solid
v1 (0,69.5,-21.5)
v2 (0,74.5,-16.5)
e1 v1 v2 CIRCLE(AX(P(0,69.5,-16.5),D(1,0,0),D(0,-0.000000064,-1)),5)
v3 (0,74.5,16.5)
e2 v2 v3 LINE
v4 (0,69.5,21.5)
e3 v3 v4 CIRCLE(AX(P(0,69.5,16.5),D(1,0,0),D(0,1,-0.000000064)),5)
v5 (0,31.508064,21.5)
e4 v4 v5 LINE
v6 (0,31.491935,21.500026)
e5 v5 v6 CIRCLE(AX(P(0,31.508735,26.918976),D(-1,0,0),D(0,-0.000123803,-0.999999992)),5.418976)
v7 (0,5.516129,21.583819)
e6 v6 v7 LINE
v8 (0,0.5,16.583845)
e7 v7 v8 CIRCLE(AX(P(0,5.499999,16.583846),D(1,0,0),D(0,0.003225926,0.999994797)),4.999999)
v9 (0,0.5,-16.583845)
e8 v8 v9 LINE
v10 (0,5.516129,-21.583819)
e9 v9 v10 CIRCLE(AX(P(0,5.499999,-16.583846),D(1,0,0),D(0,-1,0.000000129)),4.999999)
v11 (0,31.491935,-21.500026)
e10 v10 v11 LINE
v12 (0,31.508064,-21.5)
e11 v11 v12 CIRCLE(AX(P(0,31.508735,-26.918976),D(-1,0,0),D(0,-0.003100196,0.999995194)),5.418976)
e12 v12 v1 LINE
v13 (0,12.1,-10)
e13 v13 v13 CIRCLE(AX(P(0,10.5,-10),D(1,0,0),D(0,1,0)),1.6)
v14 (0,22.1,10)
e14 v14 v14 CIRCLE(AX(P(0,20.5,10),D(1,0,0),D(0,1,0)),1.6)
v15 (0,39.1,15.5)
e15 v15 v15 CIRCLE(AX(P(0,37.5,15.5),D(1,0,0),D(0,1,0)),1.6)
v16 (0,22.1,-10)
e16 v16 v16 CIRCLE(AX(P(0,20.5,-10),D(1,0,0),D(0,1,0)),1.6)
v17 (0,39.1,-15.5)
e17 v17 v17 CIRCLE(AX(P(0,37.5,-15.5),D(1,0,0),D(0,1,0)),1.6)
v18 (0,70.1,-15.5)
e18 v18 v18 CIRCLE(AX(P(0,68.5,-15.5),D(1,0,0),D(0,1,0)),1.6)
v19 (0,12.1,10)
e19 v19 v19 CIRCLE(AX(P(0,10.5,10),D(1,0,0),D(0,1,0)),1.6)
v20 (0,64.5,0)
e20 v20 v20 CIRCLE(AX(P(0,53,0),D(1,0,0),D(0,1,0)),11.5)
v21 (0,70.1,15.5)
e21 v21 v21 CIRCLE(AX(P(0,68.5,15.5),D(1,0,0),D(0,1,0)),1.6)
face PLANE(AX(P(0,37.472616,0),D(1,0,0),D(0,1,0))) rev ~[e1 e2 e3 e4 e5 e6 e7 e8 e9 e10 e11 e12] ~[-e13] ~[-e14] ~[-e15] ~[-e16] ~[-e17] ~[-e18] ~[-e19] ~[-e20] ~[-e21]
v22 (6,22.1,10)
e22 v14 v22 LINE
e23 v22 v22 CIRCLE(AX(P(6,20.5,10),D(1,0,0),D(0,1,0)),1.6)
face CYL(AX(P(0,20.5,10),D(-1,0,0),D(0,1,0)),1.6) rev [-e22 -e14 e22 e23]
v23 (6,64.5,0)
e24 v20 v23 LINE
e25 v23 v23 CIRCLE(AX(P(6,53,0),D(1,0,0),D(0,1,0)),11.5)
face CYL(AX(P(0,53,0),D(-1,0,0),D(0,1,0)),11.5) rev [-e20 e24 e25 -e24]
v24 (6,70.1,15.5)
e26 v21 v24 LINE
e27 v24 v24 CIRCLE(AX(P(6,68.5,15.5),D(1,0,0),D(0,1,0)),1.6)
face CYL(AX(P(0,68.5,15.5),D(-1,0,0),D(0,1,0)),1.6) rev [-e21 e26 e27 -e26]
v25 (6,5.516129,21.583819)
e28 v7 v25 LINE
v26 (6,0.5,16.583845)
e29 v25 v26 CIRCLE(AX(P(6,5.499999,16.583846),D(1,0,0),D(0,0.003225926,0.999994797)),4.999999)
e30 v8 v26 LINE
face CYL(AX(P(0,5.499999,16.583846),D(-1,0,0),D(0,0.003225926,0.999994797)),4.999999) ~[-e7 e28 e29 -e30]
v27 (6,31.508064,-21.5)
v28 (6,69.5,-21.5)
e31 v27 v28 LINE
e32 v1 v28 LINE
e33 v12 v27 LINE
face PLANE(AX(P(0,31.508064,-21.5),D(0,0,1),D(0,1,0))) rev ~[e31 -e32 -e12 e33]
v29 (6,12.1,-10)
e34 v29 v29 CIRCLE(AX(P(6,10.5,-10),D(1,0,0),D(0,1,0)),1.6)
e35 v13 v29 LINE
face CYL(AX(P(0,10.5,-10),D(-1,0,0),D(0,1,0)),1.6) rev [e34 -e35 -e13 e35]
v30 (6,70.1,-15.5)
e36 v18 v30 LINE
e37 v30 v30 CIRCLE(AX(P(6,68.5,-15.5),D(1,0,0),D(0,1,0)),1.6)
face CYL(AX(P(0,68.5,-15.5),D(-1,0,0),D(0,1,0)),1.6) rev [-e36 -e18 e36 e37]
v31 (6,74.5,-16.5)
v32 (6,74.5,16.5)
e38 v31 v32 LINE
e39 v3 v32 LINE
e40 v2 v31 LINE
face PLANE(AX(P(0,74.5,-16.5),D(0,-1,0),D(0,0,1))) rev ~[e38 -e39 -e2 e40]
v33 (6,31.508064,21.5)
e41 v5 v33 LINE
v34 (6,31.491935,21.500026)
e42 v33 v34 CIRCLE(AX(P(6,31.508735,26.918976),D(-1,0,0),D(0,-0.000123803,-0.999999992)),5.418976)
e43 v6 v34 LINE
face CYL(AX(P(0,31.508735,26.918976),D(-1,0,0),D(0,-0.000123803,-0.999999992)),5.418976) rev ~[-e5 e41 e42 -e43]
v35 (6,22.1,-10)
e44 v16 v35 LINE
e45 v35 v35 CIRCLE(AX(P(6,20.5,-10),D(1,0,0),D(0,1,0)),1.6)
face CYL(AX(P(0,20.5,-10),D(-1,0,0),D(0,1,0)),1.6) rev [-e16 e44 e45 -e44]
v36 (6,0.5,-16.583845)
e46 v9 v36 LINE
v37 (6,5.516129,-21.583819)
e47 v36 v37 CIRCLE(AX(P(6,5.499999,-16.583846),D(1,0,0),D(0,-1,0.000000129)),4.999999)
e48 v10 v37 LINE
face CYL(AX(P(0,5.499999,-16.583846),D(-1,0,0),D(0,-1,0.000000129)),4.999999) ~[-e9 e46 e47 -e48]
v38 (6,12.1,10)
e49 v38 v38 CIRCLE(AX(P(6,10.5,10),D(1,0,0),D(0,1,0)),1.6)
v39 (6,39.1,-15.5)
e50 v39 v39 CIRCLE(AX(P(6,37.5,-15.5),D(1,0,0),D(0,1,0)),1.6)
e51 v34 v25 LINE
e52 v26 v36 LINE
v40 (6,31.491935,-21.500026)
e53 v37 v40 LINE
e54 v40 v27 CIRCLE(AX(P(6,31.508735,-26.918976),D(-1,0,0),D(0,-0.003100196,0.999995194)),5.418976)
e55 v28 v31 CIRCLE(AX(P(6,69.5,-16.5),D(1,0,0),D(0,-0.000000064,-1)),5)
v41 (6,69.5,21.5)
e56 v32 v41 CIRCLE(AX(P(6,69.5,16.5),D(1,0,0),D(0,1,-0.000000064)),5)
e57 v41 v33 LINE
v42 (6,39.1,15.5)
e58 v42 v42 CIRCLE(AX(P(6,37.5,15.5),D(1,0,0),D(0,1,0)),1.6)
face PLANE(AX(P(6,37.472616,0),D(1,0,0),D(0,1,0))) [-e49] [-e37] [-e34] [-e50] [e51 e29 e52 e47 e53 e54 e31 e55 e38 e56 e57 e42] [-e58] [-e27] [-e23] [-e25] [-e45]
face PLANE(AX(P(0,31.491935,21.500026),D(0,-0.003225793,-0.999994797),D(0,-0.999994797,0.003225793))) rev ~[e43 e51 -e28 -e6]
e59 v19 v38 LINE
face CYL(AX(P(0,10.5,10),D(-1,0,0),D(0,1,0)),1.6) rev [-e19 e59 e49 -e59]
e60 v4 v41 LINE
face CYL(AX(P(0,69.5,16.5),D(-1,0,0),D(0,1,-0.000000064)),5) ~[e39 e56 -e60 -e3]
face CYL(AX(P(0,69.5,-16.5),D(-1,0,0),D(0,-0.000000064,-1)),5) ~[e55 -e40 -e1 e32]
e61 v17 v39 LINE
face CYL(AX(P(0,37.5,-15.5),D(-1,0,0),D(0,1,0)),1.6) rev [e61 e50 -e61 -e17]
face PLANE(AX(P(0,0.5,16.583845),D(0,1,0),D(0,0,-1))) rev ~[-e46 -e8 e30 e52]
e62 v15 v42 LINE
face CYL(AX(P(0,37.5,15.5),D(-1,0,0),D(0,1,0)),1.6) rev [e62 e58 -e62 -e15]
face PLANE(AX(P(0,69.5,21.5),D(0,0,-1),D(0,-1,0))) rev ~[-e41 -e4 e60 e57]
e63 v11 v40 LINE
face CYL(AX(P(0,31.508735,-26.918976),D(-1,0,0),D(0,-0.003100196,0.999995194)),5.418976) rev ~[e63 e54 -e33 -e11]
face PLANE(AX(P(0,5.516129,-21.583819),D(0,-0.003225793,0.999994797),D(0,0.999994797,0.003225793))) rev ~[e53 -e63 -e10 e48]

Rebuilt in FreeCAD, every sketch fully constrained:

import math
import FreeCAD as App
import Part
import Sketcher

V = App.Vector
Q = App.Units.Quantity

doc = App.newDocument("Part")
body = doc.addObject("PartDesign::Body", "Body")

# Sketch on YZ plane
sketch1 = body.newObject("Sketcher::SketchObject", "Sketch")
sketch1.AttachmentSupport = (doc.getObject("YZ_Plane"), [""])
sketch1.MapMode = "FlatFace"
sketch1.addGeometry(Part.LineSegment(V(31.508, -21.5, 0), V(69.5, -21.5, 0)), False)
sketch1.addGeometry(Part.ArcOfCircle(Part.Circle(V(69.5, -16.5, 0), V(0, 0, 1), 5), math.radians(-90), math.radians(0)), False)
sketch1.addGeometry(Part.LineSegment(V(74.5, -16.5, 0), V(74.5, 16.5, 0)), False)
sketch1.addGeometry(Part.ArcOfCircle(Part.Circle(V(69.5, 16.5, 0), V(0, 0, 1), 5), math.radians(0), math.radians(90)), False)
sketch1.addGeometry(Part.LineSegment(V(69.5, 21.5, 0), V(31.508, 21.5, 0)), False)
sketch1.addGeometry(Part.ArcOfCircle(Part.Circle(V(31.509, 26.919, 0), V(0, 0, 1), 5.419), math.radians(-90.18), math.radians(-90.01)), False)
sketch1.addGeometry(Part.LineSegment(V(31.492, 21.5, 0), V(5.516, 21.584, 0)), False)
sketch1.addGeometry(Part.ArcOfCircle(Part.Circle(V(5.5, 16.584, 0), V(0, 0, 1), 5), math.radians(90), math.radians(180)), False)
sketch1.addGeometry(Part.LineSegment(V(0.5, 16.584, 0), V(0.5, -16.584, 0)), False)
sketch1.addGeometry(Part.ArcOfCircle(Part.Circle(V(5.5, -16.584, 0), V(0, 0, 1), 5), math.radians(180), math.radians(270)), False)
sketch1.addGeometry(Part.LineSegment(V(5.516, -21.584, 0), V(31.492, -21.5, 0)), False)
sketch1.addGeometry(Part.ArcOfCircle(Part.Circle(V(31.509, -26.919, 0), V(0, 0, 1), 5.419), math.radians(90.01), math.radians(90.18)), False)
sketch1.addGeometry(Part.Circle(V(10.5, -10, 0), V(0, 0, 1), 1.6), False)
sketch1.addGeometry(Part.Circle(V(20.5, -10, 0), V(0, 0, 1), 1.6), False)
sketch1.addGeometry(Part.Circle(V(37.5, -15.5, 0), V(0, 0, 1), 1.6), False)
sketch1.addGeometry(Part.Circle(V(68.5, -15.5, 0), V(0, 0, 1), 1.6), False)
sketch1.addGeometry(Part.Circle(V(10.5, 10, 0), V(0, 0, 1), 1.6), False)
sketch1.addGeometry(Part.Circle(V(20.5, 10, 0), V(0, 0, 1), 1.6), False)
sketch1.addGeometry(Part.Circle(V(37.5, 15.5, 0), V(0, 0, 1), 1.6), False)
sketch1.addGeometry(Part.Circle(V(53, 0, 0), V(0, 0, 1), 11.5), False)
sketch1.addGeometry(Part.Circle(V(68.5, 15.5, 0), V(0, 0, 1), 1.6), False)
sketch1.addConstraint(Sketcher.Constraint("Tangent", 0, 2, 1, 1))
sketch1.addConstraint(Sketcher.Constraint("Tangent", 1, 2, 2, 1))
sketch1.addConstraint(Sketcher.Constraint("Tangent", 2, 2, 3, 1))
sketch1.addConstraint(Sketcher.Constraint("Tangent", 3, 2, 4, 1))
sketch1.addConstraint(Sketcher.Constraint("Coincident", 4, 2, 5, 2))
sketch1.addConstraint(Sketcher.Constraint("Coincident", 5, 1, 6, 1))
sketch1.addConstraint(Sketcher.Constraint("Tangent", 6, 2, 7, 1))
sketch1.addConstraint(Sketcher.Constraint("Tangent", 7, 2, 8, 1))
sketch1.addConstraint(Sketcher.Constraint("Tangent", 8, 2, 9, 1))
sketch1.addConstraint(Sketcher.Constraint("Tangent", 9, 2, 10, 1))
sketch1.addConstraint(Sketcher.Constraint("Coincident", 10, 2, 11, 2))
sketch1.addConstraint(Sketcher.Constraint("Coincident", 11, 1, 0, 1))
sketch1.addConstraint(Sketcher.Constraint("Horizontal", 0))
sketch1.addConstraint(Sketcher.Constraint("Vertical", 2))
sketch1.addConstraint(Sketcher.Constraint("Horizontal", 4))
sketch1.addConstraint(Sketcher.Constraint("Vertical", 8))
sketch1.addConstraint(Sketcher.Constraint("Equal", 1, 3))
sketch1.addConstraint(Sketcher.Constraint("Equal", 3, 7))
sketch1.addConstraint(Sketcher.Constraint("Equal", 7, 9))
sketch1.addConstraint(Sketcher.Constraint("Equal", 5, 11))
sketch1.addConstraint(Sketcher.Constraint("Equal", 12, 13))
sketch1.addConstraint(Sketcher.Constraint("Equal", 13, 14))
sketch1.addConstraint(Sketcher.Constraint("Equal", 14, 15))
sketch1.addConstraint(Sketcher.Constraint("Equal", 15, 16))
sketch1.addConstraint(Sketcher.Constraint("Equal", 16, 17))
sketch1.addConstraint(Sketcher.Constraint("Equal", 17, 18))
sketch1.addConstraint(Sketcher.Constraint("Equal", 18, 20))
sketch1.addConstraint(Sketcher.Constraint("Symmetric", 5, 3, 11, 3, -1))
sketch1.addConstraint(Sketcher.Constraint("Symmetric", 12, 3, 16, 3, -1))
sketch1.addConstraint(Sketcher.Constraint("Symmetric", 13, 3, 17, 3, -1))
sketch1.addConstraint(Sketcher.Constraint("Symmetric", 14, 3, 18, 3, -1))
sketch1.addConstraint(Sketcher.Constraint("Symmetric", 15, 3, 20, 3, -1))
sketch1.addConstraint(Sketcher.Constraint("PointOnObject", 19, 3, -1))
sketch1.addConstraint(Sketcher.Constraint("Horizontal", 12, 3, 13, 3))
sketch1.addConstraint(Sketcher.Constraint("Horizontal", 14, 3, 15, 3))
sketch1.addConstraint(Sketcher.Constraint("Vertical", 6, 2, 9, 2))
sketch1.addConstraint(Sketcher.Constraint("Vertical", 5, 1, 10, 2))
sketch1.addConstraint(Sketcher.Constraint("Vertical", 4, 2, 11, 1))
sketch1.addConstraint(Sketcher.Constraint("Diameter", 19, Q("23 mm")))
sketch1.addConstraint(Sketcher.Constraint("Radius", 1, Q("5 mm")))
sketch1.addConstraint(Sketcher.Constraint("Diameter", 12, Q("3.2 mm")))
sketch1.addConstraint(Sketcher.Constraint("DistanceY", 2, 1, 2, 2, Q("33 mm")))
sketch1.addConstraint(Sketcher.Constraint("DistanceY", 12, 3, -1, 1, Q("10 mm")))
sketch1.addConstraint(Sketcher.Constraint("DistanceX", -1, 1, 19, 3, Q("53 mm")))
sketch1.addConstraint(Sketcher.Constraint("DistanceX", 7, 3, 3, 3, Q("64.000001 mm")))
sketch1.addConstraint(Sketcher.Constraint("DistanceX", 9, 3, 12, 3, Q("5.000001 mm")))
sketch1.addConstraint(Sketcher.Constraint("DistanceX", 12, 3, 13, 3, Q("10 mm")))
sketch1.addConstraint(Sketcher.Constraint("DistanceX", 13, 3, 14, 3, Q("17 mm")))
sketch1.addConstraint(Sketcher.Constraint("DistanceY", 1, 3, 14, 3, Q("1 mm")))
sketch1.addConstraint(Sketcher.Constraint("DistanceX", 15, 3, 1, 3, Q("1 mm")))
sketch1.addConstraint(Sketcher.Constraint("DistanceX", -1, 1, 1, 3, Q("69.5 mm")))
sketch1.addConstraint(Sketcher.Constraint("Radius", 5, Q("5.418976 mm")))
sketch1.addConstraint(Sketcher.Constraint("DistanceY", 8, 2, 8, 1, Q("33.16769 mm")))
sketch1.addConstraint(Sketcher.Constraint("DistanceX", 5, 1, 5, 3, Q("0.0168 mm")))
sketch1.addConstraint(Sketcher.Constraint("Distance", 6, Q("25.975941 mm")))
sketch1.addConstraint(Sketcher.Constraint("DistanceX", 0, 1, 0, 2, Q("37.991936 mm")))
pad1 = body.newObject("PartDesign::Pad", "Pad")
pad1.Profile = sketch1
pad1.Length = 6

doc.recompute()
